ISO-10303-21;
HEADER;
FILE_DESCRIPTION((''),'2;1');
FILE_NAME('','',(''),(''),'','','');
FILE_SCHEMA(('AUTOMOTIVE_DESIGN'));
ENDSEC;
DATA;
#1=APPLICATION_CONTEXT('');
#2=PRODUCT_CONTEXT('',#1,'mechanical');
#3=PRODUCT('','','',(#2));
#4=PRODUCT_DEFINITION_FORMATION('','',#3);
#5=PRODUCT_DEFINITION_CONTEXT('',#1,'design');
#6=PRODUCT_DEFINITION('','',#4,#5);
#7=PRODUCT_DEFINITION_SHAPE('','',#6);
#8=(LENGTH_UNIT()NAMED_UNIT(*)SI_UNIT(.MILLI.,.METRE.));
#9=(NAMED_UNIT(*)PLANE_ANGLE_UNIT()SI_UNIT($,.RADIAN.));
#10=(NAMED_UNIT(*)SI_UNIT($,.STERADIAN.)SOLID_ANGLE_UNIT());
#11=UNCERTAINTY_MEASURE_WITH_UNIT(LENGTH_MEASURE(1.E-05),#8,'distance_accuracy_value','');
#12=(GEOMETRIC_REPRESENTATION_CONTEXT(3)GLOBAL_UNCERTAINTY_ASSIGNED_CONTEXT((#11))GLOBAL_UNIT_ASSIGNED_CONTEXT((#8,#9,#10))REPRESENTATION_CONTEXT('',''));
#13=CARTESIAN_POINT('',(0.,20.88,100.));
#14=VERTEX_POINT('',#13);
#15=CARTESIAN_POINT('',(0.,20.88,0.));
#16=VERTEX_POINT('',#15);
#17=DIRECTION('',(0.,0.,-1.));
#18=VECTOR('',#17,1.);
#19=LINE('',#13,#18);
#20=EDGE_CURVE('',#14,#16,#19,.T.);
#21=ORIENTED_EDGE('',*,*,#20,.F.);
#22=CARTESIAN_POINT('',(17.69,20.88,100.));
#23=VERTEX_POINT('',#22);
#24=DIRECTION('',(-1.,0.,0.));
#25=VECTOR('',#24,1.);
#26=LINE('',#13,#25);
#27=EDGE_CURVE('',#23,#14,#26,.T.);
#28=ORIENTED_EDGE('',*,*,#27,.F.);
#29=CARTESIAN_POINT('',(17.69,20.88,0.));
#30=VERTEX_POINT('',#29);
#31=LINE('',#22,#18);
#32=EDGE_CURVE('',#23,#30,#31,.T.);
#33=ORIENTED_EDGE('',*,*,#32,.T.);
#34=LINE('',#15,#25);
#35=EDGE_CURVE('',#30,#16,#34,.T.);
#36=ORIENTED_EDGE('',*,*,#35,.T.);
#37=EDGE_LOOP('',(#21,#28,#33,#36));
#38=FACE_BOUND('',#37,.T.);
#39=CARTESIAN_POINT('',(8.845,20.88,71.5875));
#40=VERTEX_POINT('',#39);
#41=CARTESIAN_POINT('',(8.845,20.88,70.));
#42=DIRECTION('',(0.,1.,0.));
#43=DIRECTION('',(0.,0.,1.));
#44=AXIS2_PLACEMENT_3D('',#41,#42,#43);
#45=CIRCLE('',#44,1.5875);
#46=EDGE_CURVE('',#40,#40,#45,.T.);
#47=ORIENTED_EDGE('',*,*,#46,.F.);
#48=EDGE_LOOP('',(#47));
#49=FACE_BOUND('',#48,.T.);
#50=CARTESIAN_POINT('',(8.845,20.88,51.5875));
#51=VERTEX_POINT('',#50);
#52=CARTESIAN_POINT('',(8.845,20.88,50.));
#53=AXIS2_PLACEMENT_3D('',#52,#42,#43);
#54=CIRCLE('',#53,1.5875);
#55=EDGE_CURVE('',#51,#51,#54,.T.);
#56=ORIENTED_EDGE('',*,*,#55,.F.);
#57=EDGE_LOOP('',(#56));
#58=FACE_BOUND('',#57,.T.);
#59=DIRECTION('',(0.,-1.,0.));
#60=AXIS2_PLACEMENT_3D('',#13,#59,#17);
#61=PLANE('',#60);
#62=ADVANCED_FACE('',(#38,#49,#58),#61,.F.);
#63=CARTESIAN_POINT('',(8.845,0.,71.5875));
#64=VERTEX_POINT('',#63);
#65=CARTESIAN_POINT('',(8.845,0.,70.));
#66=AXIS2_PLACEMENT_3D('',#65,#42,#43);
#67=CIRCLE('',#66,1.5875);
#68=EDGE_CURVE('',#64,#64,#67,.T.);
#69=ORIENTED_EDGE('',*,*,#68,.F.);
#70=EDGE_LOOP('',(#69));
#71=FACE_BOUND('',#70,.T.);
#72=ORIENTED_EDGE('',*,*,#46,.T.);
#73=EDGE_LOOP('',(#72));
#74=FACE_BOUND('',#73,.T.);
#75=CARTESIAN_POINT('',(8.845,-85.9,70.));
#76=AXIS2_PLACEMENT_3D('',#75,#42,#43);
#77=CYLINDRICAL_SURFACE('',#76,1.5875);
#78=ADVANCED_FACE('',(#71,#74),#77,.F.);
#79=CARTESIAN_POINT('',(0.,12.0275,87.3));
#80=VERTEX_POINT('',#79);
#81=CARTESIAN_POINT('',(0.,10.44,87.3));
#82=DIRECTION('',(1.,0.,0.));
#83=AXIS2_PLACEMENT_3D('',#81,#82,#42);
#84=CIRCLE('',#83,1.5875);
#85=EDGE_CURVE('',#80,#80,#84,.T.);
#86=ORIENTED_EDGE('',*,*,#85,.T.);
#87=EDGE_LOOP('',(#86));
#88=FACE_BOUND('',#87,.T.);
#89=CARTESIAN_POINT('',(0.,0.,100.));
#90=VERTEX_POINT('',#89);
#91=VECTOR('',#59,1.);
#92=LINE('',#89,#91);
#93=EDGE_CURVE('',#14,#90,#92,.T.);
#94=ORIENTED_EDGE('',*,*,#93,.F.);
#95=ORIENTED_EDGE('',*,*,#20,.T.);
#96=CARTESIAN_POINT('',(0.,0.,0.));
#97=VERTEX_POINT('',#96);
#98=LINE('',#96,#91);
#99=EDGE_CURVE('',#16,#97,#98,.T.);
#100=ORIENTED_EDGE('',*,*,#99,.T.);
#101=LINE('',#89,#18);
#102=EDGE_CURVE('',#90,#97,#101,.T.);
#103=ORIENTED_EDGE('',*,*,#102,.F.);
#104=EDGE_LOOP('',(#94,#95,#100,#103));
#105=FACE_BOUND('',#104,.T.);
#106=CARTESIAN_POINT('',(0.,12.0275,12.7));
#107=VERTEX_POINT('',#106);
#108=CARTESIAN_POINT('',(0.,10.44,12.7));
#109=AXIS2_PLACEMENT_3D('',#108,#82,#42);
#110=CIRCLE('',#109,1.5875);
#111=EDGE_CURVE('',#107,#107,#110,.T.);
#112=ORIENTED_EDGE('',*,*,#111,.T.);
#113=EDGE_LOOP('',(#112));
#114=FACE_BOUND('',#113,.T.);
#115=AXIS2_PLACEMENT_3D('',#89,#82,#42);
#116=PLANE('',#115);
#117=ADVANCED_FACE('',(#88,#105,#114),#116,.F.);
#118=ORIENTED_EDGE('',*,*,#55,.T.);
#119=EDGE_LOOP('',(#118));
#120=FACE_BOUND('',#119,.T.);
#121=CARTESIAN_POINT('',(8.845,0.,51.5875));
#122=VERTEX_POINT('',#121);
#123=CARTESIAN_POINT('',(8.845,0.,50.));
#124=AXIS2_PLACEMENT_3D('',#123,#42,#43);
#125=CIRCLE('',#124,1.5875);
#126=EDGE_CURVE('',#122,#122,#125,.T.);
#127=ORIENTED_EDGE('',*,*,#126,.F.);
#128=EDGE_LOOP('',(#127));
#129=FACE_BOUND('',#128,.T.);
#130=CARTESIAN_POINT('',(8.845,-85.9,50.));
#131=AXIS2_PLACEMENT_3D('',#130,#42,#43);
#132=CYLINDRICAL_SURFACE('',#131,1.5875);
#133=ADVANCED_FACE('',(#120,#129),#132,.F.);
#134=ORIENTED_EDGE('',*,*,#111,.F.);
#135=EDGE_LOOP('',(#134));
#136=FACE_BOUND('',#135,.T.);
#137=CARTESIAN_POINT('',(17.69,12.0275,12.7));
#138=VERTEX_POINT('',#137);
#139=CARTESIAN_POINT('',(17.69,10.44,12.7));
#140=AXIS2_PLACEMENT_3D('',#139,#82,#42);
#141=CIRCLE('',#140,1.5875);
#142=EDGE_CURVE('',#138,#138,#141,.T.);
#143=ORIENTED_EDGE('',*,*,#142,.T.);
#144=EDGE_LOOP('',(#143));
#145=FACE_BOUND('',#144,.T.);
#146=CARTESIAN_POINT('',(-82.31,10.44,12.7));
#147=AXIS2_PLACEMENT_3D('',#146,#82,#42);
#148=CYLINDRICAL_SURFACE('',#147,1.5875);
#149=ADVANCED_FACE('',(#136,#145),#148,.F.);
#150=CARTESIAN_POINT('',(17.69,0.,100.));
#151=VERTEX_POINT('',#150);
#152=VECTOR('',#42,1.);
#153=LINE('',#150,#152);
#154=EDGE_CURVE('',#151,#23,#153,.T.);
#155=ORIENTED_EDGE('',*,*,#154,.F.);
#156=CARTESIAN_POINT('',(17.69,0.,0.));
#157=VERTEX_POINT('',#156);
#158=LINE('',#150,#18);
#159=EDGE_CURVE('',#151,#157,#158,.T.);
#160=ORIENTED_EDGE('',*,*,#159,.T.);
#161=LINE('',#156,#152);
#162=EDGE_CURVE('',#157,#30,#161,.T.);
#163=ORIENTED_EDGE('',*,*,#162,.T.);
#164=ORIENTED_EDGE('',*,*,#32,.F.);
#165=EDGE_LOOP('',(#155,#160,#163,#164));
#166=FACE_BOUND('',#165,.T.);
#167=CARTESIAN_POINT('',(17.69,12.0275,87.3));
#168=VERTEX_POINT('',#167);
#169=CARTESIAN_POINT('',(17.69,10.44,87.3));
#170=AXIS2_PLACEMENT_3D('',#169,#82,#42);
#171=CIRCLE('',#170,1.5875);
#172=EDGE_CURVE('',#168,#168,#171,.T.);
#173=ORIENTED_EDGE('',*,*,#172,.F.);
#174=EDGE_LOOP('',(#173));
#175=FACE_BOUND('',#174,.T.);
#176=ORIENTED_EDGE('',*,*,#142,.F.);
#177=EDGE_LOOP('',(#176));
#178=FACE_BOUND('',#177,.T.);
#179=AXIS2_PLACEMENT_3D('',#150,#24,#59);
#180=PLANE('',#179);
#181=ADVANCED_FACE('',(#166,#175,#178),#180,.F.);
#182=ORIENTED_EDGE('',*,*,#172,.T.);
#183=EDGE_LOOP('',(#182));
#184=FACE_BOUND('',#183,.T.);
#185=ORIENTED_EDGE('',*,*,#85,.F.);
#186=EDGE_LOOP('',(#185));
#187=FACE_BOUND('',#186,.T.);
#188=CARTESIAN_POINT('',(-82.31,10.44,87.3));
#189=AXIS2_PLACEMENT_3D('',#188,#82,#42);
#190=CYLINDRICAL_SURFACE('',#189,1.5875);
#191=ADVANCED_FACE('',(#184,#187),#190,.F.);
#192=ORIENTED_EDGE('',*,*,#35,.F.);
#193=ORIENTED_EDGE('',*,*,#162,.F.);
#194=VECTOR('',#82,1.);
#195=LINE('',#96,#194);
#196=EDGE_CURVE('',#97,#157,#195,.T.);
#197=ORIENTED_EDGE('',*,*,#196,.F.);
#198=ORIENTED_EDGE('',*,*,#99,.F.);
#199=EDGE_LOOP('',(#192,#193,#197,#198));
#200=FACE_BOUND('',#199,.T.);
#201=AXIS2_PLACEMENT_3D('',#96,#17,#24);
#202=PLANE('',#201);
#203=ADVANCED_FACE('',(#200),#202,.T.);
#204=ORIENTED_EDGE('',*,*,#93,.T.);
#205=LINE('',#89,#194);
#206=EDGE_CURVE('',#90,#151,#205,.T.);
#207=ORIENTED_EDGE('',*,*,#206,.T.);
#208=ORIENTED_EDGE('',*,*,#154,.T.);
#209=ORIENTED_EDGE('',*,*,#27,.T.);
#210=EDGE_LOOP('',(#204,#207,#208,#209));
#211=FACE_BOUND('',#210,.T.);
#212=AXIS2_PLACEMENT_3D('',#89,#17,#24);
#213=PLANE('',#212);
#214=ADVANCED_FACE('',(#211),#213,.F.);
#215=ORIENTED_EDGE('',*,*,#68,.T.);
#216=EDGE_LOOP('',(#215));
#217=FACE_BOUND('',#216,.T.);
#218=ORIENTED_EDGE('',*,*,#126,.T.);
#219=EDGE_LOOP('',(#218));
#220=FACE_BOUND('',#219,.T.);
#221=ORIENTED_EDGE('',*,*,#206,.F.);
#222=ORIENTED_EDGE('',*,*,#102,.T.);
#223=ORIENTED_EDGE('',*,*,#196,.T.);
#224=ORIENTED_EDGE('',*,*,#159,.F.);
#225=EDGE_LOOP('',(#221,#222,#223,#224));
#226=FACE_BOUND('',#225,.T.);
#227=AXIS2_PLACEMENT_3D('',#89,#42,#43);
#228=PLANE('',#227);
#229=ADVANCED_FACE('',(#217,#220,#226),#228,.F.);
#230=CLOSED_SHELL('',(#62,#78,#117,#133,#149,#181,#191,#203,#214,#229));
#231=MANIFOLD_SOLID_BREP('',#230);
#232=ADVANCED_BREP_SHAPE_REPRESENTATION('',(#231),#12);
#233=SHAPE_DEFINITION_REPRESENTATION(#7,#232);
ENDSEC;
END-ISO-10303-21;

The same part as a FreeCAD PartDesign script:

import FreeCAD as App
import Part
import Sketcher

V = App.Vector
Q = App.Units.Quantity

doc = App.newDocument("Part")
params = doc.addObject("Spreadsheet::Sheet", "Params")
for row, (alias, value) in enumerate([
    ("sketch1_width", "17.69 mm"),
    ("sketch1_height", "20.88 mm"),
    ("pad1_length", "100 mm"),
    ("pocket1_length", "106.78 mm"),
    ("pocket2_length", "100 mm"),
], start=1):
    params.set(f"A{row}", alias)
    params.set(f"B{row}", "=" + value)
    params.setAlias(f"B{row}", alias)

body = doc.addObject("PartDesign::Body", "Body")

sketch1 = body.newObject("Sketcher::SketchObject", "Sketch")
sketch1.AttachmentSupport = (doc.getObject("XY_Plane"), [""])
sketch1.MapMode = "FlatFace"
sketch1.addGeometry([
    Part.LineSegment(V(0, 21, 0), V(0, 0, 0)),
    Part.LineSegment(V(0, 0, 0), V(18, 0, 0)),
    Part.LineSegment(V(18, 0, 0), V(18, 21, 0)),
    Part.LineSegment(V(18, 21, 0), V(0, 21, 0)),
], False)
sketch1.addConstraint([
    Sketcher.Constraint("Coincident", 0, 2, 1, 1),
    Sketcher.Constraint("Coincident", 1, 2, 2, 1),
    Sketcher.Constraint("Coincident", 2, 2, 3, 1),
    Sketcher.Constraint("Coincident", 3, 2, 0, 1),
    Sketcher.Constraint("Vertical", 0),
    Sketcher.Constraint("Horizontal", 1),
    Sketcher.Constraint("Vertical", 2),
    Sketcher.Constraint("Horizontal", 3),
    Sketcher.Constraint("Coincident", 0, 2, -1, 1),
    Sketcher.Constraint("DistanceX", 1, 1, 1, 2, Q("17.69 mm")),
    Sketcher.Constraint("DistanceY", 0, 2, 0, 1, Q("20.88 mm")),
])
sketch1.setExpression("Constraints[9]", "Params.sketch1_width")
sketch1.setExpression("Constraints[10]", "Params.sketch1_height")
pad1 = body.newObject("PartDesign::Pad", "Pad")
pad1.Profile = sketch1
pad1.setExpression("Length", "Params.pad1_length")

sketch2 = body.newObject("Sketcher::SketchObject", "Sketch001")
sketch2.AttachmentSupport = (doc.getObject("XZ_Plane"), [""])
sketch2.MapMode = "FlatFace"
sketch2.AttachmentOffset = App.Placement(V(0, 0, -20.88), App.Rotation())
sketch2.addGeometry([
    Part.Circle(V(8.8, 50, 0), V(0, 0, 1), 1.6),
    Part.Circle(V(8.8, 70, 0), V(0, 0, 1), 1.6),
], False)
sketch2.addConstraint([
    Sketcher.Constraint("Equal", 0, 1),
    Sketcher.Constraint("Vertical", 0, 3, 1, 3),
    Sketcher.Constraint("Diameter", 0, Q("3.175 mm")),
    Sketcher.Constraint("DistanceY", -1, 1, 0, 3, Q("50 mm")),
    Sketcher.Constraint("DistanceY", -1, 1, 1, 3, Q("70 mm")),
    Sketcher.Constraint("DistanceX", -1, 1, 0, 3, Q("8.845 mm")),
])
pocket1 = body.newObject("PartDesign::Pocket", "Pocket")
pocket1.Profile = sketch2
pocket1.setExpression("Length", "Params.pocket1_length")
pocket1.Reversed = True

sketch3 = body.newObject("Sketcher::SketchObject", "Sketch002")
sketch3.AttachmentSupport = (doc.getObject("YZ_Plane"), [""])
sketch3.MapMode = "FlatFace"
sketch3.AttachmentOffset = App.Placement(V(0, 0, 17.69), App.Rotation())
sketch3.addGeometry([
    Part.Circle(V(10.4, 87.3, 0), V(0, 0, 1), 1.6),
    Part.Circle(V(10.4, 12.7, 0), V(0, 0, 1), 1.6),
], False)
sketch3.addConstraint([
    Sketcher.Constraint("Equal", 0, 1),
    Sketcher.Constraint("Vertical", 0, 3, 1, 3),
    Sketcher.Constraint("Diameter", 0, Q("3.175 mm")),
    Sketcher.Constraint("DistanceY", -1, 1, 0, 3, Q("87.3 mm")),
    Sketcher.Constraint("DistanceY", -1, 1, 1, 3, Q("12.7 mm")),
    Sketcher.Constraint("DistanceX", -1, 1, 0, 3, Q("10.44 mm")),
])
pocket2 = body.newObject("PartDesign::Pocket", "Pocket001")
pocket2.Profile = sketch3
pocket2.setExpression("Length", "Params.pocket2_length")

doc.recompute()
